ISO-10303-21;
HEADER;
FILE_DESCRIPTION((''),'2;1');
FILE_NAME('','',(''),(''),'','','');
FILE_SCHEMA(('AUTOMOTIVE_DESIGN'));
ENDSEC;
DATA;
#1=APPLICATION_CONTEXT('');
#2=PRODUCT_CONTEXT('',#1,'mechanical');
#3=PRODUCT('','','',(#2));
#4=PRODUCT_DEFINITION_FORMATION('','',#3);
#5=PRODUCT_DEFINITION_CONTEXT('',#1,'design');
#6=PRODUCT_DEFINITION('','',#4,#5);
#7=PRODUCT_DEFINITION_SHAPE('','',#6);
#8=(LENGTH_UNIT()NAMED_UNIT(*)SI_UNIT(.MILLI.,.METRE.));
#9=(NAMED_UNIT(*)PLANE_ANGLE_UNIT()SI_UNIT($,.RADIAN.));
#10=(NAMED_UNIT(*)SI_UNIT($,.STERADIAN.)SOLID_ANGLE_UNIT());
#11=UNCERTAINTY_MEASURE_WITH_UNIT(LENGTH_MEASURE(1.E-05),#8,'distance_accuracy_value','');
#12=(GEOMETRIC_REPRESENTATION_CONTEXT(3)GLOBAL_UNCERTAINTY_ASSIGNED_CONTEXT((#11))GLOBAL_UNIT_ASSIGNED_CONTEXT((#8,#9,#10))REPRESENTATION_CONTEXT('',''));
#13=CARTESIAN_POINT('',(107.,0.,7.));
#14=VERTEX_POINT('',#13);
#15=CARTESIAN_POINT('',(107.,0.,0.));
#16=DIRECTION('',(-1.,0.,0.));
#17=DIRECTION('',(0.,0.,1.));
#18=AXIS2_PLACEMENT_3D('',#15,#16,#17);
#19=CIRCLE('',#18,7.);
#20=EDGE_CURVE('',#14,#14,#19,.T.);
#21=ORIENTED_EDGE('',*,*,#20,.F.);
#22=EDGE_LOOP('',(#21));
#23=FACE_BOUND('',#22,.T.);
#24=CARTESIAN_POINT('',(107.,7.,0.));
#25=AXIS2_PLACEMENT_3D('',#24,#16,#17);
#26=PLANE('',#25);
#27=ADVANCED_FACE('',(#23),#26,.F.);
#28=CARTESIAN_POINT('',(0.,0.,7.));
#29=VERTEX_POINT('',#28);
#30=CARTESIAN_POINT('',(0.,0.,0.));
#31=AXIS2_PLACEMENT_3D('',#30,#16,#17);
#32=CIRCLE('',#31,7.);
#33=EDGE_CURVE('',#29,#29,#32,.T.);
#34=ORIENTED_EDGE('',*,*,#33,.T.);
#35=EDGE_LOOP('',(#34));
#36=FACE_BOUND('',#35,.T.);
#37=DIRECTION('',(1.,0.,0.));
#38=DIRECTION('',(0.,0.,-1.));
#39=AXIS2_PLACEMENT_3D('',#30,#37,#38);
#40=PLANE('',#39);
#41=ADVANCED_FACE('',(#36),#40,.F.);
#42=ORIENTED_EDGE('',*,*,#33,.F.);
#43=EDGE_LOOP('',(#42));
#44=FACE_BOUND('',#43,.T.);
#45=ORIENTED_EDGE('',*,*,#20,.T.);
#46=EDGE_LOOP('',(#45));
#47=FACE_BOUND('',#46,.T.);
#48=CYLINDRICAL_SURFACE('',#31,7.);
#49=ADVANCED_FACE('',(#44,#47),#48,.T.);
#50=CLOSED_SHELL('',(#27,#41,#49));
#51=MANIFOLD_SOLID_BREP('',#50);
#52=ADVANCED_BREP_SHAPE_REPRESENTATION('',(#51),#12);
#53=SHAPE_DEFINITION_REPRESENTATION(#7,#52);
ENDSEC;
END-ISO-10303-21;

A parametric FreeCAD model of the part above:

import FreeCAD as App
import Part
import Sketcher

V = App.Vector

doc = App.newDocument("Part")
body = doc.addObject("PartDesign::Body", "Body")

sketch1 = doc.addObject("Sketcher::SketchObject", "Sketch")
body.addObject(sketch1)
sketch1.AttachmentSupport = (doc.XY_Plane, [""])
sketch1.MapMode = "FlatFace"
sketch1.addGeometry([
    Part.LineSegment(V(0, 7, 0), V(0, 0, 0)),
    Part.LineSegment(V(0, 0, 0), V(107, 0, 0)),
    Part.LineSegment(V(107, 0, 0), V(107, 7, 0)),
    Part.LineSegment(V(107, 7, 0), V(0, 7, 0)),
], False)
sketch1.addConstraint([
    Sketcher.Constraint("Coincident", 0, 2, 1, 1),
    Sketcher.Constraint("Coincident", 1, 2, 2, 1),
    Sketcher.Constraint("Coincident", 2, 2, 3, 1),
    Sketcher.Constraint("Coincident", 3, 2, 0, 1),
    Sketcher.Constraint("Vertical", 0),
    Sketcher.Constraint("Horizontal", 1),
    Sketcher.Constraint("Vertical", 2),
    Sketcher.Constraint("Horizontal", 3),
    Sketcher.Constraint("Coincident", 0, 2, -1, 1),
    Sketcher.Constraint("DistanceX", 1, 1, 1, 2, 107.0),
    Sketcher.Constraint("DistanceY", 0, 2, 0, 1, 7.0),
])
revolution = doc.addObject("PartDesign::Revolution", "Revolution")
body.addObject(revolution)
revolution.Profile = sketch1
revolution.ReferenceAxis = (sketch1, ["H_Axis"])
revolution.Angle = 360

doc.recompute()
